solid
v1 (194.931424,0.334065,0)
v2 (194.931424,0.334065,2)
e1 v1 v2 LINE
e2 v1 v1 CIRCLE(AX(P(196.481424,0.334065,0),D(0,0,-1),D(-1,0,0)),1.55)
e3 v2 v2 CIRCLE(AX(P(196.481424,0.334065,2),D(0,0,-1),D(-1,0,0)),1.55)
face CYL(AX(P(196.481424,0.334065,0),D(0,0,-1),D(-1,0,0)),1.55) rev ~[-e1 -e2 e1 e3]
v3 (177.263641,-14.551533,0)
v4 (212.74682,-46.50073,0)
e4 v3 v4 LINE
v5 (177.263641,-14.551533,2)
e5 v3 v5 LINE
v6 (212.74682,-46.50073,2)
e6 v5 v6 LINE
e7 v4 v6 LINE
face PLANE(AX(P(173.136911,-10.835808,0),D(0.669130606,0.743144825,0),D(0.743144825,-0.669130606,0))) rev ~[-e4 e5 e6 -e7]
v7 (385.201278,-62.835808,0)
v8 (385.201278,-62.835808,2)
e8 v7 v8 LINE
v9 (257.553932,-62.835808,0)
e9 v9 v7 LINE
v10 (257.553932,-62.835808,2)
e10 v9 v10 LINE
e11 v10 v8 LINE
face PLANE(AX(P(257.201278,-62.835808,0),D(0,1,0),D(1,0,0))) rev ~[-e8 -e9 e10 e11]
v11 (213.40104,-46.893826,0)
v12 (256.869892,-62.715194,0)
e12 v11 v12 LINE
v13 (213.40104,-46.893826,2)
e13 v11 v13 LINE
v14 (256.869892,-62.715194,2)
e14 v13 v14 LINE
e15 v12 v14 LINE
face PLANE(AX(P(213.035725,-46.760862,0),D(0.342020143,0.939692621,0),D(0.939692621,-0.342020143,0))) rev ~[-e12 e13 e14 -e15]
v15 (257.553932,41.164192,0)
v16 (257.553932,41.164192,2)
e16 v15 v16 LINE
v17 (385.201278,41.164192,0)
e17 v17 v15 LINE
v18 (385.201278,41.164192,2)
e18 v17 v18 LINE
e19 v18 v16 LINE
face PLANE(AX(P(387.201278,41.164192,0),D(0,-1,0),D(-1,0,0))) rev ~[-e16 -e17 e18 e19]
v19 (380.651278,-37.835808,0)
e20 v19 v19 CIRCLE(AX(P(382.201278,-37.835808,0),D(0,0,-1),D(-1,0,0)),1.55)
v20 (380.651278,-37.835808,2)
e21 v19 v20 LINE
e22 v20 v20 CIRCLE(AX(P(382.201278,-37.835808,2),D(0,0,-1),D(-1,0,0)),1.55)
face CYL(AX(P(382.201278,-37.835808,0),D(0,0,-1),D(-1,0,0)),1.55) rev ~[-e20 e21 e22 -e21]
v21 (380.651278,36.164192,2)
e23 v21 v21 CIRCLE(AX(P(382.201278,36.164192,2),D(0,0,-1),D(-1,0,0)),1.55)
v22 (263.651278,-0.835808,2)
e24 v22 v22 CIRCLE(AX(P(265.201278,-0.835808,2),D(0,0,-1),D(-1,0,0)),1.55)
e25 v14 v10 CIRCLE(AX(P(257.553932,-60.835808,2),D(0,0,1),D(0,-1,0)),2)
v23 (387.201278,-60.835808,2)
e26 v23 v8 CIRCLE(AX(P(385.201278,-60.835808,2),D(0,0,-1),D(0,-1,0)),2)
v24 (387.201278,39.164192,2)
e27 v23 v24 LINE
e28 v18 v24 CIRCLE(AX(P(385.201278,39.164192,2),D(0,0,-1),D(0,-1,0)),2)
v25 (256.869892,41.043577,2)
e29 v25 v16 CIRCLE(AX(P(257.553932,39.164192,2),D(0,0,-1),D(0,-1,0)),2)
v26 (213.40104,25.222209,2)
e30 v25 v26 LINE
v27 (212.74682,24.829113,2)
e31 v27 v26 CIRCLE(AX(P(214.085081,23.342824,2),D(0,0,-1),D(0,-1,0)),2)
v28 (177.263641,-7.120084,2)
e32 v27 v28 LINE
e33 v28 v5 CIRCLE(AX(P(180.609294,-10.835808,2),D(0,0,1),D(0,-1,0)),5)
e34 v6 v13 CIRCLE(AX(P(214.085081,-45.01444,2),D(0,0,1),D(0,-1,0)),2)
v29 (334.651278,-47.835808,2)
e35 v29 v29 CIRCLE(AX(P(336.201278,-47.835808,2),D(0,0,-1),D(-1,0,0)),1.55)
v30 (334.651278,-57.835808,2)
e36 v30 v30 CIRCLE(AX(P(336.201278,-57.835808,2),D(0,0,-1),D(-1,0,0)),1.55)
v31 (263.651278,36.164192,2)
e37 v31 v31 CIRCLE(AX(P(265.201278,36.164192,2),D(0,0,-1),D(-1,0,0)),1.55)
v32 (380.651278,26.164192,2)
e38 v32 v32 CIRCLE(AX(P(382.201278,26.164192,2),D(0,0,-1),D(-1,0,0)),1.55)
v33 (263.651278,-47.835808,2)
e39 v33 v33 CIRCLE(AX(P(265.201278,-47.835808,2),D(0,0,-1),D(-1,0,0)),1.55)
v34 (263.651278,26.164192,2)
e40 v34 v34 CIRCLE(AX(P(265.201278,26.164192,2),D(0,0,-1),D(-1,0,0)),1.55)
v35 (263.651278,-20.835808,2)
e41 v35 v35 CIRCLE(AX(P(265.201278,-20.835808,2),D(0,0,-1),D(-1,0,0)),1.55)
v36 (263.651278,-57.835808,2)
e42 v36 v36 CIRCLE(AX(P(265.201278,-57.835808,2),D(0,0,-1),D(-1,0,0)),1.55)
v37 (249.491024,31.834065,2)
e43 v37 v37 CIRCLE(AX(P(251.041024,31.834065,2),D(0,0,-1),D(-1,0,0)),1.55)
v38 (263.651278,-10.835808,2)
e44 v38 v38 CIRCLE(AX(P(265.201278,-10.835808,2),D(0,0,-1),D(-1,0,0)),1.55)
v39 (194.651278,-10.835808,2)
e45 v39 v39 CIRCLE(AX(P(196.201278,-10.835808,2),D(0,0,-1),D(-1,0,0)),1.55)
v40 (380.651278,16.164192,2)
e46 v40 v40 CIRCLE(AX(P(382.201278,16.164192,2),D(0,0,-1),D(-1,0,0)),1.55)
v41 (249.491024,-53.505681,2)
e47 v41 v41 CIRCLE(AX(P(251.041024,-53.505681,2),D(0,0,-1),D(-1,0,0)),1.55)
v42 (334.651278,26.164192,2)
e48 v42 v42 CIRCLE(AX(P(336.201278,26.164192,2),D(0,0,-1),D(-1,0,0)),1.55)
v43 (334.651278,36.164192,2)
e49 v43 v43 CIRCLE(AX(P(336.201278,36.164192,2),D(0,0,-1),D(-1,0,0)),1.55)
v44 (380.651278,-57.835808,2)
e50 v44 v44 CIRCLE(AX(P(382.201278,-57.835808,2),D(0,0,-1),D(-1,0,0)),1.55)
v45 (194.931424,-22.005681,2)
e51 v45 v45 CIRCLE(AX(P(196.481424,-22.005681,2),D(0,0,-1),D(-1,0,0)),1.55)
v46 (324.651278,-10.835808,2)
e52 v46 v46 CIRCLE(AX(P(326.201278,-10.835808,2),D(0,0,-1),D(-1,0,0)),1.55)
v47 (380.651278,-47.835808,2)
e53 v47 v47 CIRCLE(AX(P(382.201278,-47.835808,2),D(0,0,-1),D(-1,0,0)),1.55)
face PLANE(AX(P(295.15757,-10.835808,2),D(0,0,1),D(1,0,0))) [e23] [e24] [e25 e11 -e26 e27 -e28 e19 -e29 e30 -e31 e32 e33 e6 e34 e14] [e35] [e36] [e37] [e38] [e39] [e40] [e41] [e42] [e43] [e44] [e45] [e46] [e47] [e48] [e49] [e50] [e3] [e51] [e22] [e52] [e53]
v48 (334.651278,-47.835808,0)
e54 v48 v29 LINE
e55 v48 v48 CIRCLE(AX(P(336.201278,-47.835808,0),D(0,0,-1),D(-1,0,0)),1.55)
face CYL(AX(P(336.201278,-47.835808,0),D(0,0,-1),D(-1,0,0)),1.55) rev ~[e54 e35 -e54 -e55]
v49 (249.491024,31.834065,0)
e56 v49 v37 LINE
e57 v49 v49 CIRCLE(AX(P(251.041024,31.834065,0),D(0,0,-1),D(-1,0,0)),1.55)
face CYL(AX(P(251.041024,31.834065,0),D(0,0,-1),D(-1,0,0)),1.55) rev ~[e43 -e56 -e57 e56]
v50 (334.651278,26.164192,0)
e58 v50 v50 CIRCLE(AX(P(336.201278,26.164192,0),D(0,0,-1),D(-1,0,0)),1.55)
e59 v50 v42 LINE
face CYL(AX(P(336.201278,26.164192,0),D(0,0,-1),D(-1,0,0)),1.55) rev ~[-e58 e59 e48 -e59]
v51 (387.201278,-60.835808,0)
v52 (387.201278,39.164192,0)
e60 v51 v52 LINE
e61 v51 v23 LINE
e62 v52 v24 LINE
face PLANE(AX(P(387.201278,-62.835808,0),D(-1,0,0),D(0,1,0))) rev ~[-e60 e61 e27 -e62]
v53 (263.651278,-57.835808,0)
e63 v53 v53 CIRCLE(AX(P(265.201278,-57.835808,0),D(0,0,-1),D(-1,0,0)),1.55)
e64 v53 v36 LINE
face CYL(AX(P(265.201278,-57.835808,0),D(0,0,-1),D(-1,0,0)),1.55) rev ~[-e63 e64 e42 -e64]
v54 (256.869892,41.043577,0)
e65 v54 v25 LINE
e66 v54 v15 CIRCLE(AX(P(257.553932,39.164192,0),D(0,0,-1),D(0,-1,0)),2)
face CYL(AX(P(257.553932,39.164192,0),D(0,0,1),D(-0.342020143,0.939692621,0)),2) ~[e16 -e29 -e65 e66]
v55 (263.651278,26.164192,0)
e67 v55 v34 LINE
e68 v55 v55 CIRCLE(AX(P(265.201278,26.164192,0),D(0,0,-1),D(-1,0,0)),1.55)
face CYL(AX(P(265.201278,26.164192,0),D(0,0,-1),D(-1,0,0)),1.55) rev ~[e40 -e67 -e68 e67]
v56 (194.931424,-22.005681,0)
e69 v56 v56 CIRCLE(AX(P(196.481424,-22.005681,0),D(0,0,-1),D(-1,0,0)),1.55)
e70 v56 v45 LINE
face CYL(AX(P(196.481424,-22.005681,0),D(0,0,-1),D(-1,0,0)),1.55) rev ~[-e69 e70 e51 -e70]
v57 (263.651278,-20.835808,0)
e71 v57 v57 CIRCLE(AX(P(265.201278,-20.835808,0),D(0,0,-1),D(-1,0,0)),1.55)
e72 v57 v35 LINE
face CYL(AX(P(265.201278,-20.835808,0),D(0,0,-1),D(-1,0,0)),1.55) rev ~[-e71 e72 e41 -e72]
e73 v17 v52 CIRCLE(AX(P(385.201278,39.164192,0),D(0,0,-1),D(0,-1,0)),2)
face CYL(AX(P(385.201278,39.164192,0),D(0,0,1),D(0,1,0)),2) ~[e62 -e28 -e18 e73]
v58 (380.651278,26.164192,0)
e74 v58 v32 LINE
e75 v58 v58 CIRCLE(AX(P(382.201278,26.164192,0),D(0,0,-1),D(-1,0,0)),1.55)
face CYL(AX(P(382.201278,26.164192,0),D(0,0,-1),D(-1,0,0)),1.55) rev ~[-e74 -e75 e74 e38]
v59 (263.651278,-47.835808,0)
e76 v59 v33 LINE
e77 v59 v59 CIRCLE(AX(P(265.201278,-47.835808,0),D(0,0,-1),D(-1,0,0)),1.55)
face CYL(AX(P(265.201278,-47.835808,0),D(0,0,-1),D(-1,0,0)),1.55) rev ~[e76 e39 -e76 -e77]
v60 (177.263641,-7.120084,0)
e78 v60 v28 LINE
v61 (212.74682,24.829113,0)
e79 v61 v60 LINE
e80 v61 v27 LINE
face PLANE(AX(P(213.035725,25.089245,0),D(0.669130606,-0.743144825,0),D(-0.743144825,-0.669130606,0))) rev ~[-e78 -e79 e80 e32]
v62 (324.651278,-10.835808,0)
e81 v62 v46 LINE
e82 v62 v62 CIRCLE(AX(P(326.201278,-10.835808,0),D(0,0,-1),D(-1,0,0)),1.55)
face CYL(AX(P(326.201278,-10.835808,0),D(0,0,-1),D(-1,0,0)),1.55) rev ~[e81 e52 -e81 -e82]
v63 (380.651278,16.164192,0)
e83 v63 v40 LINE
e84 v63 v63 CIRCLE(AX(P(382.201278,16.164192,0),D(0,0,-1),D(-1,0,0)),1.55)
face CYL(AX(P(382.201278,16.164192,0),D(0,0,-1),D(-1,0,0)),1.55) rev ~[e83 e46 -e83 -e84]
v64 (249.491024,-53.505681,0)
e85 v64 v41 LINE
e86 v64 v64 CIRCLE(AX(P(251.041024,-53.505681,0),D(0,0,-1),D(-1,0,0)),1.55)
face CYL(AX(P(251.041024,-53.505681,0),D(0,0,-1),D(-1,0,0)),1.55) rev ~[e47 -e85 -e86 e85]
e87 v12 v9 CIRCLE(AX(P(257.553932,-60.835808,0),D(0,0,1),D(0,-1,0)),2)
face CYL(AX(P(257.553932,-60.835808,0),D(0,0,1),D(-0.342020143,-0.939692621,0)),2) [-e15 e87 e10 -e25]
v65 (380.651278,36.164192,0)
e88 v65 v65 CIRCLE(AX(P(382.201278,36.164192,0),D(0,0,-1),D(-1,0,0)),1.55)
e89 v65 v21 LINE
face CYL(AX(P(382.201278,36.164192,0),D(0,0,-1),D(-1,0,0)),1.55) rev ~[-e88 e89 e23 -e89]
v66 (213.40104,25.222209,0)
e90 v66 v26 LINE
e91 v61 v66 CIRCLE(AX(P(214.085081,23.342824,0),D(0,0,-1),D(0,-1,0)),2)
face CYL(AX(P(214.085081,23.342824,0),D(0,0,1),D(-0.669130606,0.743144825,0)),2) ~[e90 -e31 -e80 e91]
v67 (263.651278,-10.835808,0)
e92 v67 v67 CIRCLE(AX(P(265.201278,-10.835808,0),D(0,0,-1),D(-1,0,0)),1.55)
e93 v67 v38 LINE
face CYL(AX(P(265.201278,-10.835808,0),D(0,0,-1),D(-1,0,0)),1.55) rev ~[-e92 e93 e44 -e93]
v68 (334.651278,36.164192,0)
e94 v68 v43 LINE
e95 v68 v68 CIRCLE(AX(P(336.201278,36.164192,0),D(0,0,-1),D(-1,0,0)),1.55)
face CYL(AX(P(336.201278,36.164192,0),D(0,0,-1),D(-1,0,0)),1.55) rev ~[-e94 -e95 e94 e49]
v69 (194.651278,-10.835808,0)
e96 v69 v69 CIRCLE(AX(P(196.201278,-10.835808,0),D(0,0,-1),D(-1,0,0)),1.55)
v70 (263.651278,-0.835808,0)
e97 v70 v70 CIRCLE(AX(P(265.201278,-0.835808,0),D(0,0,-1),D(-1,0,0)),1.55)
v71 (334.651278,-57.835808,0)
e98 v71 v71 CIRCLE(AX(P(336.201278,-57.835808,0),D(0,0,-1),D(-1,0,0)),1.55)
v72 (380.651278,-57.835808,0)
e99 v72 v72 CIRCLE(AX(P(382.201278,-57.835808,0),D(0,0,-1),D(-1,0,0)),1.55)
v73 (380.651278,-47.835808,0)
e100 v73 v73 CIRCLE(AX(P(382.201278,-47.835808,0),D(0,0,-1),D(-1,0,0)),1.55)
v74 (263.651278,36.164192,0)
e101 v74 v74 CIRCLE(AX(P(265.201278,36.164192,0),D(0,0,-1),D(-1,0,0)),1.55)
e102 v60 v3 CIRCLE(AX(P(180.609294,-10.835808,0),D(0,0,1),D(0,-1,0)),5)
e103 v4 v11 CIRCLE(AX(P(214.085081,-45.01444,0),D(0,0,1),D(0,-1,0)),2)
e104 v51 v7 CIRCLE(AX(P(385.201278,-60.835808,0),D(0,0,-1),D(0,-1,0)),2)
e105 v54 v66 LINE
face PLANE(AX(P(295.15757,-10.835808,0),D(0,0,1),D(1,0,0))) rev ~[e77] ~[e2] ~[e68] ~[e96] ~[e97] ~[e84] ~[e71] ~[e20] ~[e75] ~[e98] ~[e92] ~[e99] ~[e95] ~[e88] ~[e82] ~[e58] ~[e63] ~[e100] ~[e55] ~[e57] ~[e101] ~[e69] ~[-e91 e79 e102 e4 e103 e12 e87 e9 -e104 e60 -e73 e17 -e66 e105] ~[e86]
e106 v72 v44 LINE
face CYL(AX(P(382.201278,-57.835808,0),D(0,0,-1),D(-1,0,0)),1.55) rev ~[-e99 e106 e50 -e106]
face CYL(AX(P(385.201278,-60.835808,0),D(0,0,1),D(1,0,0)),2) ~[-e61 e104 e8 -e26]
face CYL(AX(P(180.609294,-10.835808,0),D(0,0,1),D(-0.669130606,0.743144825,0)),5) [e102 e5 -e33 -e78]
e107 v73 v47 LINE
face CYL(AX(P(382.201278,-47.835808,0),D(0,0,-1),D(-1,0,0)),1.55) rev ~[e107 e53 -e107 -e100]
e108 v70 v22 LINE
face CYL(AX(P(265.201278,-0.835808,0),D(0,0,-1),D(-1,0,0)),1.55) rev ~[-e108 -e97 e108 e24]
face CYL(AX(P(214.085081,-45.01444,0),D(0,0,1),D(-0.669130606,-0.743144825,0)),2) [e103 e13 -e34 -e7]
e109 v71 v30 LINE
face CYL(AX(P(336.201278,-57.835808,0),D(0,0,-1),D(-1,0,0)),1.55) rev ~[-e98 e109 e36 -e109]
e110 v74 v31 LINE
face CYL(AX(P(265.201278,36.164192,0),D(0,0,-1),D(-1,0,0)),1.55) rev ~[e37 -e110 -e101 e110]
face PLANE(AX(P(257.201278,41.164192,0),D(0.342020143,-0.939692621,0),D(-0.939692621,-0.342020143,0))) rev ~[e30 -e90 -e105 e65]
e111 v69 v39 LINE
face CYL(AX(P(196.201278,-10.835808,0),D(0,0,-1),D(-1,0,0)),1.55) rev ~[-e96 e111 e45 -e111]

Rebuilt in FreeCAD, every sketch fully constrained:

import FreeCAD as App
import Part
import Sketcher
from FreeCAD import Vector
Q = App.Units.Quantity


def edges_at(feature, points):
    """Names of the edges that pass closest to the given points."""
    edges = feature.Shape.Edges
    near = lambda p: min(range(len(edges)), key=lambda i: edges[i].distToShape(Part.Vertex(*p))[0])
    return sorted({f"Edge{near(p) + 1}" for p in points})

doc = App.newDocument("Part")
body = doc.addObject("PartDesign::Body", "Body")

sketch1 = doc.addObject("Sketcher::SketchObject", "Sketch")
body.addObject(sketch1)
sketch1.AttachmentSupport = (doc.XY_Plane, [""])
sketch1.MapMode = "FlatFace"
sketch1.addGeometry(Part.LineSegment(Vector(387, -63, 0), Vector(387, 41, 0)), False)
sketch1.addGeometry(Part.LineSegment(Vector(387, 41, 0), Vector(257, 41, 0)), False)
sketch1.addGeometry(Part.LineSegment(Vector(257, 41, 0), Vector(213, 25, 0)), False)
sketch1.addGeometry(Part.LineSegment(Vector(213, 25, 0), Vector(173, -11, 0)), False)
sketch1.addGeometry(Part.LineSegment(Vector(173, -11, 0), Vector(213, -47, 0)), False)
sketch1.addGeometry(Part.LineSegment(Vector(213, -47, 0), Vector(257, -63, 0)), False)
sketch1.addGeometry(Part.LineSegment(Vector(257, -63, 0), Vector(387, -63, 0)), False)
sketch1.addConstraint(Sketcher.Constraint("Coincident", 0, 2, 1, 1))
sketch1.addConstraint(Sketcher.Constraint("Coincident", 1, 2, 2, 1))
sketch1.addConstraint(Sketcher.Constraint("Coincident", 2, 2, 3, 1))
sketch1.addConstraint(Sketcher.Constraint("Coincident", 3, 2, 4, 1))
sketch1.addConstraint(Sketcher.Constraint("Coincident", 4, 2, 5, 1))
sketch1.addConstraint(Sketcher.Constraint("Coincident", 5, 2, 6, 1))
sketch1.addConstraint(Sketcher.Constraint("Coincident", 6, 2, 0, 1))
sketch1.addConstraint(Sketcher.Constraint("Vertical", 0))
sketch1.addConstraint(Sketcher.Constraint("Horizontal", 1))
sketch1.addConstraint(Sketcher.Constraint("Horizontal", 6))
sketch1.addConstraint(Sketcher.Constraint("Vertical", 2, 2, 4, 2))
sketch1.addConstraint(Sketcher.Constraint("Vertical", 1, 2, 5, 2))
sketch1.addConstraint(Sketcher.Constraint("Equal", 3, 4))
sketch1.addConstraint(Sketcher.Constraint("Equal", 2, 5))
sketch1.addConstraint(Sketcher.Constraint("DistanceX", 1, 2, 1, 1, 130.0))
sketch1.addConstraint(Sketcher.Constraint("DistanceY", 0, 1, 0, 2, 104.0))
sketch1.addConstraint(Sketcher.Constraint("Angle", 2, Q("-160 deg")))
sketch1.addConstraint(Sketcher.Constraint("Angle", 3, Q("-138 deg")))
sketch1.addConstraint(Sketcher.Constraint("Distance", 2, 47.0))
sketch1.addConstraint(Sketcher.Constraint("DistanceX", -1, 1, 0, 2, 387.201278))
sketch1.addConstraint(Sketcher.Constraint("DistanceY", -1, 1, 0, 2, 41.164192))
pad1 = doc.addObject("PartDesign::Pad", "Pad")
body.addObject(pad1)
pad1.Profile = sketch1
pad1.Length = 2
doc.recompute()

fillet = doc.addObject("PartDesign::Fillet", "Fillet")
body.addObject(fillet)
fillet.Base = (pad1, edges_at(pad1, [(173.137, -10.836, 1)]))
fillet.Radius = 5
doc.recompute()

fillet2 = doc.addObject("PartDesign::Fillet", "Fillet001")
body.addObject(fillet2)
fillet2.Base = (fillet, edges_at(fillet, [
    (257.201, -62.836, 1),
    (213.036, -46.761, 1),
    (213.036, 25.089, 1),
    (257.201, 41.164, 1),
    (387.201, 41.164, 1),
    (387.201, -62.836, 1),
]))
fillet2.Radius = 2

sketch2 = doc.addObject("Sketcher::SketchObject", "Sketch001")
body.addObject(sketch2)
sketch2.AttachmentSupport = (doc.XY_Plane, [""])
sketch2.MapMode = "FlatFace"
sketch2.addGeometry(Part.Circle(Vector(265.2, 36.2, 0), Vector(0, 0, 1), 1.6), False)
sketch2.addGeometry(Part.Circle(Vector(251, 31.8, 0), Vector(0, 0, 1), 1.6), False)
sketch2.addGeometry(Part.Circle(Vector(336.2, 26.2, 0), Vector(0, 0, 1), 1.6), False)
sketch2.addGeometry(Part.Circle(Vector(265.2, 26.2, 0), Vector(0, 0, 1), 1.6), False)
sketch2.addGeometry(Part.Circle(Vector(265.2, -0.8, 0), Vector(0, 0, 1), 1.6), False)
sketch2.addGeometry(Part.Circle(Vector(382.2, 36.2, 0), Vector(0, 0, 1), 1.6), False)
sketch2.addGeometry(Part.Circle(Vector(382.2, 26.2, 0), Vector(0, 0, 1), 1.6), False)
sketch2.addGeometry(Part.Circle(Vector(196.5, 0.3, 0), Vector(0, 0, 1), 1.6), False)
sketch2.addGeometry(Part.Circle(Vector(326.2, -10.8, 0), Vector(0, 0, 1), 1.6), False)
sketch2.addGeometry(Part.Circle(Vector(196.2, -10.8, 0), Vector(0, 0, 1), 1.6), False)
sketch2.addGeometry(Part.Circle(Vector(196.5, -22, 0), Vector(0, 0, 1), 1.6), False)
sketch2.addGeometry(Part.Circle(Vector(265.2, -20.8, 0), Vector(0, 0, 1), 1.6), False)
sketch2.addGeometry(Part.Circle(Vector(265.2, -57.8, 0), Vector(0, 0, 1), 1.6), False)
sketch2.addGeometry(Part.Circle(Vector(265.2, -47.8, 0), Vector(0, 0, 1), 1.6), False)
sketch2.addGeometry(Part.Circle(Vector(336.2, -47.8, 0), Vector(0, 0, 1), 1.6), False)
sketch2.addGeometry(Part.Circle(Vector(382.2, -47.8, 0), Vector(0, 0, 1), 1.6), False)
sketch2.addGeometry(Part.Circle(Vector(382.2, -57.8, 0), Vector(0, 0, 1), 1.6), False)
sketch2.addGeometry(Part.Circle(Vector(265.2, -10.8, 0), Vector(0, 0, 1), 1.6), False)
sketch2.addGeometry(Part.Circle(Vector(336.2, 36.2, 0), Vector(0, 0, 1), 1.6), False)
sketch2.addGeometry(Part.Circle(Vector(336.2, -57.8, 0), Vector(0, 0, 1), 1.6), False)
sketch2.addGeometry(Part.Circle(Vector(251, -53.5, 0), Vector(0, 0, 1), 1.6), False)
sketch2.addGeometry(Part.Circle(Vector(382.2, 16.2, 0), Vector(0, 0, 1), 1.6), False)
sketch2.addGeometry(Part.Circle(Vector(382.2, -37.8, 0), Vector(0, 0, 1), 1.6), False)
sketch2.addConstraint(Sketcher.Constraint("Equal", 0, 1))
sketch2.addConstraint(Sketcher.Constraint("Equal", 1, 2))
sketch2.addConstraint(Sketcher.Constraint("Equal", 2, 3))
sketch2.addConstraint(Sketcher.Constraint("Equal", 3, 4))
sketch2.addConstraint(Sketcher.Constraint("Equal", 4, 5))
sketch2.addConstraint(Sketcher.Constraint("Equal", 5, 6))
sketch2.addConstraint(Sketcher.Constraint("Equal", 6, 7))
sketch2.addConstraint(Sketcher.Constraint("Equal", 7, 8))
sketch2.addConstraint(Sketcher.Constraint("Equal", 8, 9))
sketch2.addConstraint(Sketcher.Constraint("Equal", 9, 10))
sketch2.addConstraint(Sketcher.Constraint("Equal", 10, 11))
sketch2.addConstraint(Sketcher.Constraint("Equal", 11, 12))
sketch2.addConstraint(Sketcher.Constraint("Equal", 12, 13))
sketch2.addConstraint(Sketcher.Constraint("Equal", 13, 14))
sketch2.addConstraint(Sketcher.Constraint("Equal", 14, 15))
sketch2.addConstraint(Sketcher.Constraint("Equal", 15, 16))
sketch2.addConstraint(Sketcher.Constraint("Equal", 16, 17))
sketch2.addConstraint(Sketcher.Constraint("Equal", 17, 18))
sketch2.addConstraint(Sketcher.Constraint("Equal", 18, 19))
sketch2.addConstraint(Sketcher.Constraint("Equal", 19, 20))
sketch2.addConstraint(Sketcher.Constraint("Equal", 20, 21))
sketch2.addConstraint(Sketcher.Constraint("Equal", 21, 22))
sketch2.addConstraint(Sketcher.Constraint("Horizontal", 2, 3, 3, 3))
sketch2.addConstraint(Sketcher.Constraint("Horizontal", 0, 3, 5, 3))
sketch2.addConstraint(Sketcher.Constraint("Horizontal", 3, 3, 6, 3))
sketch2.addConstraint(Sketcher.Constraint("Horizontal", 8, 3, 9, 3))
sketch2.addConstraint(Sketcher.Constraint("Horizontal", 13, 3, 14, 3))
sketch2.addConstraint(Sketcher.Constraint("Horizontal", 14, 3, 15, 3))
sketch2.addConstraint(Sketcher.Constraint("Horizontal", 12, 3, 16, 3))
sketch2.addConstraint(Sketcher.Constraint("Horizontal", 9, 3, 17, 3))
sketch2.addConstraint(Sketcher.Constraint("Horizontal", 5, 3, 18, 3))
sketch2.addConstraint(Sketcher.Constraint("Horizontal", 16, 3, 19, 3))
sketch2.addConstraint(Sketcher.Constraint("Vertical", 0, 3, 3, 3))
sketch2.addConstraint(Sketcher.Constraint("Vertical", 3, 3, 4, 3))
sketch2.addConstraint(Sketcher.Constraint("Vertical", 5, 3, 6, 3))
sketch2.addConstraint(Sketcher.Constraint("Vertical", 7, 3, 10, 3))
sketch2.addConstraint(Sketcher.Constraint("Vertical", 4, 3, 11, 3))
sketch2.addConstraint(Sketcher.Constraint("Vertical", 11, 3, 12, 3))
sketch2.addConstraint(Sketcher.Constraint("Vertical", 12, 3, 13, 3))
sketch2.addConstraint(Sketcher.Constraint("Vertical", 2, 3, 14, 3))
sketch2.addConstraint(Sketcher.Constraint("Vertical", 6, 3, 15, 3))
sketch2.addConstraint(Sketcher.Constraint("Vertical", 15, 3, 16, 3))
sketch2.addConstraint(Sketcher.Constraint("Vertical", 13, 3, 17, 3))
sketch2.addConstraint(Sketcher.Constraint("Vertical", 14, 3, 18, 3))
sketch2.addConstraint(Sketcher.Constraint("Vertical", 18, 3, 19, 3))
sketch2.addConstraint(Sketcher.Constraint("Vertical", 1, 3, 20, 3))
sketch2.addConstraint(Sketcher.Constraint("Vertical", 16, 3, 21, 3))
sketch2.addConstraint(Sketcher.Constraint("Vertical", 21, 3, 22, 3))
sketch2.addConstraint(Sketcher.Constraint("Diameter", 0, 3.1))
sketch2.addConstraint(Sketcher.Constraint("DistanceX", 0, 3, 2, 3, 71.0))
sketch2.addConstraint(Sketcher.Constraint("DistanceY", 2, 3, 0, 3, 10.0))
sketch2.addConstraint(Sketcher.Constraint("DistanceY", 4, 3, 3, 3, 27.0))
sketch2.addConstraint(Sketcher.Constraint("DistanceX", 2, 3, 5, 3, 46.0))
sketch2.addConstraint(Sketcher.Constraint("DistanceX", 8, 3, 2, 3, 10.0))
sketch2.addConstraint(Sketcher.Constraint("DistanceY", 8, 3, 2, 3, 37.0))
sketch2.addConstraint(Sketcher.Constraint("DistanceX", 9, 3, 4, 3, 69.0))
sketch2.addConstraint(Sketcher.Constraint("DistanceY", 11, 3, 4, 3, 20.0))
sketch2.addConstraint(Sketcher.Constraint("DistanceY", 12, 3, 11, 3, 37.0))
sketch2.addConstraint(Sketcher.Constraint("DistanceY", 12, 3, 13, 3, 10.0))
sketch2.addConstraint(Sketcher.Constraint("DistanceY", 21, 3, 6, 3, 10.0))
sketch2.addConstraint(Sketcher.Constraint("DistanceY", 15, 3, 22, 3, 10.0))
sketch2.addConstraint(Sketcher.Constraint("DistanceY", 7, 3, 1, 3, 31.5))
sketch2.addConstraint(Sketcher.Constraint("DistanceX", 7, 3, 1, 3, 54.5596))
sketch2.addConstraint(Sketcher.Constraint("DistanceX", -1, 1, 0, 3, 265.201278))
sketch2.addConstraint(Sketcher.Constraint("DistanceY", -1, 1, 0, 3, 36.164192))
sketch2.addConstraint(Sketcher.Constraint("DistanceY", 10, 3, -1, 1, 22.005681))
sketch2.addConstraint(Sketcher.Constraint("DistanceY", 20, 3, -1, 1, 53.505681))
sketch2.addConstraint(Sketcher.Constraint("DistanceX", -1, 1, 1, 3, 251.041024))
sketch2.addConstraint(Sketcher.Constraint("DistanceY", -1, 1, 1, 3, 31.834065))
pocket1 = doc.addObject("PartDesign::Pocket", "Pocket")
body.addObject(pocket1)
pocket1.Profile = sketch2
pocket1.Length = 2
pocket1.Reversed = True

doc.recompute()
